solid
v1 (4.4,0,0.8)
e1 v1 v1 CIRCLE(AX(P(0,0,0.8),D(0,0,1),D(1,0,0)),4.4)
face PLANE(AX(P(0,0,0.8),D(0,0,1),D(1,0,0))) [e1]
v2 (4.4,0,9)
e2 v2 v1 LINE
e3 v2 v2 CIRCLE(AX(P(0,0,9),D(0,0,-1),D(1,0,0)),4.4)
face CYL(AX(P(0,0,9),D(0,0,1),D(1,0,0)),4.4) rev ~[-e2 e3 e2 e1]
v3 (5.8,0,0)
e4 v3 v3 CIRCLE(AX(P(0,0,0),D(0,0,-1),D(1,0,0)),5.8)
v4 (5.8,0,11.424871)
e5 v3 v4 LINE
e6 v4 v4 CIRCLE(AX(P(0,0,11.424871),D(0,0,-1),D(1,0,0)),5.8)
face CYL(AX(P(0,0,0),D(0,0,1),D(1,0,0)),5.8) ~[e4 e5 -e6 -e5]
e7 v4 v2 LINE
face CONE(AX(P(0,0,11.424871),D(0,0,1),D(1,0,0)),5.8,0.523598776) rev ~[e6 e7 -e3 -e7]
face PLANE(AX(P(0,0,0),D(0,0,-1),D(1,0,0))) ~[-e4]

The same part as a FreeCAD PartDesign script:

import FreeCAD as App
import Part
import Sketcher
from FreeCAD import Vector
Q = App.Units.Quantity


def add_polygon(sketch, points):
    """Adds a closed chain of lines whose ends are joined by coincident constraints."""
    first, n = sketch.GeometryCount, len(points)
    for a, b in zip(points, points[1:] + points[:1]):
        sketch.addGeometry(Part.LineSegment(App.Vector(*a, 0), App.Vector(*b, 0)), False)
    for i in range(n):
        sketch.addConstraint(Sketcher.Constraint("Coincident", first + i, 2, first + (i + 1) % n, 1))

doc = App.newDocument("Part")
body = doc.addObject("PartDesign::Body", "Body")

# Sketch on XZ plane
sketch1 = body.newObject("Sketcher::SketchObject", "Sketch")
sketch1.AttachmentSupport = (doc.getObject("XZ_Plane"), [""])
sketch1.MapMode = "FlatFace"
add_polygon(sketch1, [(0, 9), (0, 0), (5.8, 0), (5.8, 11.424871), (4.4, 9)])  # lines 0-4
sketch1.addConstraint([
    Sketcher.Constraint("Vertical", 0),
    Sketcher.Constraint("Horizontal", 1),
    Sketcher.Constraint("Vertical", 2),
    Sketcher.Constraint("Horizontal", 4),
    Sketcher.Constraint("Coincident", 0, 2, -1, 1),
    Sketcher.Constraint("DistanceY", 0, 2, 0, 1, 9.0),
    Sketcher.Constraint("Angle", 3, Q("-120 deg")),
    Sketcher.Constraint("DistanceX", 1, 1, 1, 2, 5.8),
    Sketcher.Constraint("DistanceX", 4, 2, 4, 1, 4.4),
])
revolution = body.newObject("PartDesign::Revolution", "Revolution")
revolution.Profile = sketch1
revolution.ReferenceAxis = (sketch1, ["V_Axis"])
revolution.Angle = 360

# Sketch on XY plane
sketch2 = body.newObject("Sketcher::SketchObject", "Sketch001")
sketch2.AttachmentSupport = (doc.getObject("XY_Plane"), [""])
sketch2.MapMode = "FlatFace"
sketch2.AttachmentOffset = App.Placement(Vector(0, 0, 9), App.Rotation())
sketch2.addGeometry(Part.Circle(Vector(0, 0, 0), Vector(0, 0, 1), 4.4), False)
sketch2.addConstraint([
    Sketcher.Constraint("Coincident", 0, 3, -1, 1),
    Sketcher.Constraint("Diameter", 0, 8.8),
])
pocket1 = body.newObject("PartDesign::Pocket", "Pocket")
pocket1.Profile = sketch2
pocket1.Length = 8.2

doc.recompute()
